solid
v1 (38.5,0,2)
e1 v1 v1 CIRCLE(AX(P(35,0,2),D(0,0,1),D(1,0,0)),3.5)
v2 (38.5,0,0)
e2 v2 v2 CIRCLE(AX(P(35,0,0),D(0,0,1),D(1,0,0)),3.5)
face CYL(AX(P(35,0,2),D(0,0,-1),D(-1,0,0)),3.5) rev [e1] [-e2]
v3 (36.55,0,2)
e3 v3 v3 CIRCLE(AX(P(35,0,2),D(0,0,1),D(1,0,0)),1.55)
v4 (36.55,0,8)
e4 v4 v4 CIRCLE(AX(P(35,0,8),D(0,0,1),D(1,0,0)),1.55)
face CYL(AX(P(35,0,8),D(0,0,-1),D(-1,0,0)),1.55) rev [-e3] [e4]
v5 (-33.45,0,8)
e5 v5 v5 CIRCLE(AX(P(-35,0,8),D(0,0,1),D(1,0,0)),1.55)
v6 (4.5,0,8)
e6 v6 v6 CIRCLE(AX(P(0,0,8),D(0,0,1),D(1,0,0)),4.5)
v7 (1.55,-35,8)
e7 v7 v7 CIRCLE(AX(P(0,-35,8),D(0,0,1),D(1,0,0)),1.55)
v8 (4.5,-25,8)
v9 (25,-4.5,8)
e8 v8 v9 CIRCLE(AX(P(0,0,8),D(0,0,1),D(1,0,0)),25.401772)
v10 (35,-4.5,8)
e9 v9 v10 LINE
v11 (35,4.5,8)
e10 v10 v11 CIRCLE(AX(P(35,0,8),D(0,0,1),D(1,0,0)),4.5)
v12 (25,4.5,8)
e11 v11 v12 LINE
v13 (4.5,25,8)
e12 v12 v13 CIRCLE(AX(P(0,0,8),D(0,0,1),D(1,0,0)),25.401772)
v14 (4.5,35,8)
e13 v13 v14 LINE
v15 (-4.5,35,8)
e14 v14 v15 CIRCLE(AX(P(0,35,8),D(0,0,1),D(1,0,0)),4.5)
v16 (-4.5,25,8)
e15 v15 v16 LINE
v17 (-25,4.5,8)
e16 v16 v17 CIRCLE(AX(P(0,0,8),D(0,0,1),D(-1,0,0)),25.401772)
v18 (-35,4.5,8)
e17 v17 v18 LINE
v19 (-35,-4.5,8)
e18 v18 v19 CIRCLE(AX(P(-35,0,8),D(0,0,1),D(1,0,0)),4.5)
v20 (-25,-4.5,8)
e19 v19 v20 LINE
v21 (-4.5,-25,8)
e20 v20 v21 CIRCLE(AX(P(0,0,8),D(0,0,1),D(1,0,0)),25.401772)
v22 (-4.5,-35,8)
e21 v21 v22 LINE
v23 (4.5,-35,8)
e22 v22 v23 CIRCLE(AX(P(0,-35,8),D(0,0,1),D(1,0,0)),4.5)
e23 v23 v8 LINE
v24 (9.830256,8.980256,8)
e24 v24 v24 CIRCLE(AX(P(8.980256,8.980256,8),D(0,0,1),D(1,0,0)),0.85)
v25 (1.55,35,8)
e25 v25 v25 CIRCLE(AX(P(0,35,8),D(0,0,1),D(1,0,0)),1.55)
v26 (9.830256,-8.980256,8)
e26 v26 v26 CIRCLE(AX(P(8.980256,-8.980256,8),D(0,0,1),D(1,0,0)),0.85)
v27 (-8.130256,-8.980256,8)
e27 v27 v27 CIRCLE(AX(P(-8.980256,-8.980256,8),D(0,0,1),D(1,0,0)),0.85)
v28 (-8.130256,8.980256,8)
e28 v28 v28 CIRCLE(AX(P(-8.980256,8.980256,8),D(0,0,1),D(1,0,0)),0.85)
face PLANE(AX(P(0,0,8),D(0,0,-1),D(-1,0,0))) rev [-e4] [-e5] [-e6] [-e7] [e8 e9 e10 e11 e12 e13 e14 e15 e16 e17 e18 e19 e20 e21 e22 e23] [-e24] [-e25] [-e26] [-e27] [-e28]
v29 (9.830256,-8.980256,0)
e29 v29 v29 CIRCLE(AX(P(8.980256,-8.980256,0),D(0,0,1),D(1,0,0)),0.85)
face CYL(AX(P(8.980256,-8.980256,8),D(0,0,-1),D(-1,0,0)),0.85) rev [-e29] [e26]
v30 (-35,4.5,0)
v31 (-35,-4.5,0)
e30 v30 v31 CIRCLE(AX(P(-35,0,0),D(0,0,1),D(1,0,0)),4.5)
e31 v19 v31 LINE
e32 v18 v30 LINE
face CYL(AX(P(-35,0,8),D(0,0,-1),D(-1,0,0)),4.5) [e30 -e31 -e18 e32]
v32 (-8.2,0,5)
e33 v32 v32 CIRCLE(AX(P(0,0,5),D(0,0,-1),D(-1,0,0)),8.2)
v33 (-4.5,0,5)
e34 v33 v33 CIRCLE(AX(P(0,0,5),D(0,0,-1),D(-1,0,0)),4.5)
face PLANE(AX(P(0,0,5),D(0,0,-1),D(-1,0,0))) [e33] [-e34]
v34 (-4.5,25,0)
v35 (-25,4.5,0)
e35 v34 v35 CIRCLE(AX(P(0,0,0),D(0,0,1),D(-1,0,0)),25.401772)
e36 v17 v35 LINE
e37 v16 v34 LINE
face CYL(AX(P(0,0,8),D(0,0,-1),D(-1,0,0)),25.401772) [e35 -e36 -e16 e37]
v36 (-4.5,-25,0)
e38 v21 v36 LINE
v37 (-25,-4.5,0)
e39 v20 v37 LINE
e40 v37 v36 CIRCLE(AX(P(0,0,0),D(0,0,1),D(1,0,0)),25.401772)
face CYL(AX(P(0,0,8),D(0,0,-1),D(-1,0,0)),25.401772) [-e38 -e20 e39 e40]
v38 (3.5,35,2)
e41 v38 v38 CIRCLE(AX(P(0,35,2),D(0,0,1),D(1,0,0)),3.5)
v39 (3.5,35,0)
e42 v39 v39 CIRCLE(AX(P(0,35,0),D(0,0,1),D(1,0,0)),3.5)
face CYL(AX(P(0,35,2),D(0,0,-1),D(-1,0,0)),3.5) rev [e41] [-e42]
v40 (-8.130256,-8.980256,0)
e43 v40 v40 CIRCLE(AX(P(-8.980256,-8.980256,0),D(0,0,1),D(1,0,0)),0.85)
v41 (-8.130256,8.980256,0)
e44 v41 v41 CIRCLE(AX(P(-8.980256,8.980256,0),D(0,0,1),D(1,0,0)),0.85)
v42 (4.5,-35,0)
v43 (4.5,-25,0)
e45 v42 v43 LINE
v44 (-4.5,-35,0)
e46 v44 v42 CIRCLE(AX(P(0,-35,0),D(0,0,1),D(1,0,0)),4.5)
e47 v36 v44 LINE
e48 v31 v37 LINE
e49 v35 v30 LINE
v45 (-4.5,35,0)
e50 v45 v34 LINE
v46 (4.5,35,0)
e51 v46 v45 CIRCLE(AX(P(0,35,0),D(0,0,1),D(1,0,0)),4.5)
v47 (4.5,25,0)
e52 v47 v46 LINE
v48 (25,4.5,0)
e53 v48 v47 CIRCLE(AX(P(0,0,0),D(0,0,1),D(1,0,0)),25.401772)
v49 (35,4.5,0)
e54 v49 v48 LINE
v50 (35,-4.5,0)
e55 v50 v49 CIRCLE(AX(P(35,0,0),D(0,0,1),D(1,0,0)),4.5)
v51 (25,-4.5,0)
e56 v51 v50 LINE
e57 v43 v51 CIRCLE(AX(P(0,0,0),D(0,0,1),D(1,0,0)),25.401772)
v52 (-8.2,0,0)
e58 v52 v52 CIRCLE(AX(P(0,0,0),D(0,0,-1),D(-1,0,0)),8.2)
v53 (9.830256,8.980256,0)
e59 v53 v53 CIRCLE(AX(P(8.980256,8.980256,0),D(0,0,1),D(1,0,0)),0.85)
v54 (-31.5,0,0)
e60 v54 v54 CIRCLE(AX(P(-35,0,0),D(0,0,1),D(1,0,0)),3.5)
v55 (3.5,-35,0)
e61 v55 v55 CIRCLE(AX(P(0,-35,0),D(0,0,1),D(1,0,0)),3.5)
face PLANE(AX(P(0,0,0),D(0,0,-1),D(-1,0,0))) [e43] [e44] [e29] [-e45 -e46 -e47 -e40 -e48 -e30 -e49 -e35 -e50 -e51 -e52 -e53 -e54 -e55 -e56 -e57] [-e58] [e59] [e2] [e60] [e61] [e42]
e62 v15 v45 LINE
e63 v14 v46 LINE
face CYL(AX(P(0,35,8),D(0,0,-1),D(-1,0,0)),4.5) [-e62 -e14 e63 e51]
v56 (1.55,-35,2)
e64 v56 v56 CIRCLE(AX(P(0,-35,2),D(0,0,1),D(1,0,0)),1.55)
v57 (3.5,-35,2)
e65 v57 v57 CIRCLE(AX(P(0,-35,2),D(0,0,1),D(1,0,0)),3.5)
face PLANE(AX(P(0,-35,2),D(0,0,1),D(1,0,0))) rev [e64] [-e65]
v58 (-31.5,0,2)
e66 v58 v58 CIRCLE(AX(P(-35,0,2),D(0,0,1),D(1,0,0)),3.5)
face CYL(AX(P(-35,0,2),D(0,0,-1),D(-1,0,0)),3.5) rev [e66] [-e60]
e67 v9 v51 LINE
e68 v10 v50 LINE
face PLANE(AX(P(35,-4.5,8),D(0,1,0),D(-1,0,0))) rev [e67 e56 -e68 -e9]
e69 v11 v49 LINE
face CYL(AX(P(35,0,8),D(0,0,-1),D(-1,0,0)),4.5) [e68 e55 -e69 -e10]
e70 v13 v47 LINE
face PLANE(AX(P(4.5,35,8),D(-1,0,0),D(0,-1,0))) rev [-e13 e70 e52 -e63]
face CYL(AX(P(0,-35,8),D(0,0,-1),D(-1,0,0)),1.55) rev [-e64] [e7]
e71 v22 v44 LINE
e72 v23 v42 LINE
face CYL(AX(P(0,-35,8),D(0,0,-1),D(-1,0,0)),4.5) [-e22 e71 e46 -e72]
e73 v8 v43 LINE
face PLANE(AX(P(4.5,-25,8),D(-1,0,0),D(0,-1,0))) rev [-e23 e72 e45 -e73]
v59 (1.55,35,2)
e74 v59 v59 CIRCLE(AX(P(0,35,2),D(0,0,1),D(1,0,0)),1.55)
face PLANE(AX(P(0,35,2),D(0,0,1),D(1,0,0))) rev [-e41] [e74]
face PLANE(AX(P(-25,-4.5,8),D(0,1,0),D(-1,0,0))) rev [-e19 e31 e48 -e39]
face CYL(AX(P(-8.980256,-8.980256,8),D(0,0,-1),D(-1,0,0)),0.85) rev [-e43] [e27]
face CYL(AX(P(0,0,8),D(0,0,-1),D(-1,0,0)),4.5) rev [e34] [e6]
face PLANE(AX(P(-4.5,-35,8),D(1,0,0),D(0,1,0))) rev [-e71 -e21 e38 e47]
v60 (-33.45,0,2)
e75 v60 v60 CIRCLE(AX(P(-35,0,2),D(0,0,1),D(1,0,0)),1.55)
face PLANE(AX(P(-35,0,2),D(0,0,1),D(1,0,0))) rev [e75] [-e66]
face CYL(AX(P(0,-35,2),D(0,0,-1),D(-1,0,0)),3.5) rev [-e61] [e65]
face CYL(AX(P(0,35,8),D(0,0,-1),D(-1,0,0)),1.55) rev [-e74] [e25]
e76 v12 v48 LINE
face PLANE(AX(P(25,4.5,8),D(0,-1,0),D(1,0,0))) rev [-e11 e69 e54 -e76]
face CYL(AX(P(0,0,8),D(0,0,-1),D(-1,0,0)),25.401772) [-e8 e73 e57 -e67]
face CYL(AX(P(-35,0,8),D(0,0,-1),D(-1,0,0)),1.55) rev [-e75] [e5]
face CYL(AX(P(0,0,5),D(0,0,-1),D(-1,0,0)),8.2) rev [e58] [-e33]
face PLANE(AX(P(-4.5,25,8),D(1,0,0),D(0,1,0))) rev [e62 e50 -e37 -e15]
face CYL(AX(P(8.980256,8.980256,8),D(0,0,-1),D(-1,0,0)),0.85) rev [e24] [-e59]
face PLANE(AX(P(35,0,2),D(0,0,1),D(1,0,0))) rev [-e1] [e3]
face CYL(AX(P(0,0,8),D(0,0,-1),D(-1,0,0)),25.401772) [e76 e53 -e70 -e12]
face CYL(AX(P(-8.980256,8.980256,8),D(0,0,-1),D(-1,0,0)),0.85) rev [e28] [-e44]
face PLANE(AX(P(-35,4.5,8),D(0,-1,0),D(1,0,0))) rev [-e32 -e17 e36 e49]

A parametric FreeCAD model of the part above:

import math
import FreeCAD as App
import Part
import Sketcher

V = App.Vector
Q = App.Units.Quantity

doc = App.newDocument("Part")
params = doc.addObject("Spreadsheet::Sheet", "Params")
for row, (alias, value) in enumerate([
    ("sketch1_diameter", "9 mm"),
    ("sketch1_diameter2", "1.7 mm"),
    ("sketch1_diameter3", "3.1 mm"),
    ("sketch1_width", "10 mm"),
    ("pad1_length", "8 mm"),
    ("sketch2_diameter", "16.4 mm"),
    ("pocket1_length", "5 mm"),
    ("sketch3_diameter", "7 mm"),
    ("pocket2_length", "2 mm"),
], start=1):
    params.set(f"A{row}", alias)
    params.set(f"B{row}", "=" + value)
    params.setAlias(f"B{row}", alias)

body = doc.addObject("PartDesign::Body", "Body")

# Sketch on XY plane
sketch1 = doc.addObject("Sketcher::SketchObject", "Sketch")
body.addObject(sketch1)
sketch1.AttachmentSupport = (doc.XY_Plane, [""])
sketch1.MapMode = "FlatFace"
sketch1.addGeometry([
    Part.LineSegment(V(-25, 4.5, 0), V(-35, 4.5, 0)),  # 0
    Part.ArcOfCircle(Part.Circle(V(-35, 0, 0), V(0, 0, 1), 4.5), math.radians(90), math.radians(270)),  # 1
    Part.LineSegment(V(-35, -4.5, 0), V(-25, -4.5, 0)),  # 2
    Part.ArcOfCircle(Part.Circle(V(0, 0, 0), V(0, 0, 1), 25.4), math.radians(-170), math.radians(-100)),  # 3
    Part.LineSegment(V(-4.5, -25, 0), V(-4.5, -35, 0)),  # 4
    Part.ArcOfCircle(Part.Circle(V(0, -35, 0), V(0, 0, 1), 4.5), math.radians(180), math.radians(360)),  # 5
    Part.LineSegment(V(4.5, -35, 0), V(4.5, -25, 0)),  # 6
    Part.ArcOfCircle(Part.Circle(V(0, 0, 0), V(0, 0, 1), 25.4), math.radians(-80), math.radians(-10)),  # 7
    Part.LineSegment(V(25, -4.5, 0), V(35, -4.5, 0)),  # 8
    Part.ArcOfCircle(Part.Circle(V(35, 0, 0), V(0, 0, 1), 4.5), math.radians(-90), math.radians(90)),  # 9
    Part.LineSegment(V(35, 4.5, 0), V(25, 4.5, 0)),  # 10
    Part.ArcOfCircle(Part.Circle(V(0, 0, 0), V(0, 0, 1), 25.4), math.radians(10), math.radians(80)),  # 11
    Part.LineSegment(V(4.5, 25, 0), V(4.5, 35, 0)),  # 12
    Part.ArcOfCircle(Part.Circle(V(0, 35, 0), V(0, 0, 1), 4.5), math.radians(0), math.radians(180)),  # 13
    Part.LineSegment(V(-4.5, 35, 0), V(-4.5, 25, 0)),  # 14
    Part.ArcOfCircle(Part.Circle(V(0, 0, 0), V(0, 0, 1), 25.4), math.radians(100), math.radians(170)),  # 15
    Part.Circle(V(9, -9, 0), V(0, 0, 1), 0.8),  # 16
    Part.Circle(V(0, -35, 0), V(0, 0, 1), 1.6),  # 17
    Part.Circle(V(-9, -9, 0), V(0, 0, 1), 0.8),  # 18
    Part.Circle(V(35, 0, 0), V(0, 0, 1), 1.6),  # 19
    Part.Circle(V(9, 9, 0), V(0, 0, 1), 0.8),  # 20
    Part.Circle(V(0, 0, 0), V(0, 0, 1), 4.5),  # 21
    Part.Circle(V(-9, 9, 0), V(0, 0, 1), 0.8),  # 22
    Part.Circle(V(-35, 0, 0), V(0, 0, 1), 1.6),  # 23
    Part.Circle(V(0, 35, 0), V(0, 0, 1), 1.6),  # 24
], False)
sketch1.addConstraint([
    Sketcher.Constraint("Tangent", 0, 2, 1, 1),
    Sketcher.Constraint("Tangent", 1, 2, 2, 1),
    Sketcher.Constraint("Coincident", 2, 2, 3, 1),
    Sketcher.Constraint("Coincident", 3, 2, 4, 1),
    Sketcher.Constraint("Tangent", 4, 2, 5, 1),
    Sketcher.Constraint("Tangent", 5, 2, 6, 1),
    Sketcher.Constraint("Coincident", 6, 2, 7, 1),
    Sketcher.Constraint("Coincident", 7, 2, 8, 1),
    Sketcher.Constraint("Tangent", 8, 2, 9, 1),
    Sketcher.Constraint("Tangent", 9, 2, 10, 1),
    Sketcher.Constraint("Coincident", 10, 2, 11, 1),
    Sketcher.Constraint("Coincident", 11, 2, 12, 1),
    Sketcher.Constraint("Tangent", 12, 2, 13, 1),
    Sketcher.Constraint("Tangent", 13, 2, 14, 1),
    Sketcher.Constraint("Coincident", 14, 2, 15, 1),
    Sketcher.Constraint("Coincident", 15, 2, 0, 1),
    Sketcher.Constraint("Horizontal", 0),
    Sketcher.Constraint("Horizontal", 2),
    Sketcher.Constraint("Vertical", 4),
    Sketcher.Constraint("Vertical", 6),
    Sketcher.Constraint("Horizontal", 8),
    Sketcher.Constraint("Horizontal", 10),
    Sketcher.Constraint("Vertical", 12),
    Sketcher.Constraint("Vertical", 14),
    Sketcher.Constraint("Coincident", 3, 3, -1, 1),
    Sketcher.Constraint("Coincident", 7, 3, -1, 1),
    Sketcher.Constraint("Coincident", 11, 3, -1, 1),
    Sketcher.Constraint("Coincident", 15, 3, -1, 1),
    Sketcher.Constraint("Coincident", 21, 3, -1, 1),
    Sketcher.Constraint("Coincident", 17, 3, 5, 3),
    Sketcher.Constraint("Coincident", 19, 3, 9, 3),
    Sketcher.Constraint("Coincident", 23, 3, 1, 3),
    Sketcher.Constraint("Coincident", 24, 3, 13, 3),
    Sketcher.Constraint("Equal", 1, 5),
    Sketcher.Constraint("Equal", 3, 7),
    Sketcher.Constraint("Equal", 5, 9),
    Sketcher.Constraint("Equal", 7, 11),
    Sketcher.Constraint("Equal", 9, 13),
    Sketcher.Constraint("Equal", 11, 15),
    Sketcher.Constraint("Equal", 16, 18),
    Sketcher.Constraint("Equal", 17, 19),
    Sketcher.Constraint("Equal", 18, 20),
    Sketcher.Constraint("Equal", 13, 21),
    Sketcher.Constraint("Equal", 20, 22),
    Sketcher.Constraint("Equal", 19, 23),
    Sketcher.Constraint("Equal", 23, 24),
    Sketcher.Constraint("Symmetric", 1, 3, 9, 3, -1, 1),
    Sketcher.Constraint("Symmetric", 5, 3, 13, 3, -1, 1),
    Sketcher.Constraint("Symmetric", 18, 3, 20, 3, -1, 1),
    Sketcher.Constraint("Symmetric", 16, 3, 22, 3, -1, 1),
    Sketcher.Constraint("Symmetric", 16, 3, 18, 3, -2),
    Sketcher.Constraint("PointOnObject", 1, 3, -1),
    Sketcher.Constraint("PointOnObject", 5, 3, -2),
    Sketcher.Constraint("Equal", 10, 4),
    Sketcher.Constraint("Diameter", 21, Q("9 mm")),
    Sketcher.Constraint("Diameter", 16, Q("1.7 mm")),
    Sketcher.Constraint("Diameter", 17, Q("3.1 mm")),
    Sketcher.Constraint("DistanceX", 0, 2, 0, 1, Q("10 mm")),
    Sketcher.Constraint("DistanceX", 1, 3, -1, 1, Q("35 mm")),
    Sketcher.Constraint("DistanceX", -1, 1, 16, 3, Q("8.980256 mm")),
    Sketcher.Constraint("DistanceY", 16, 3, -1, 1, Q("8.980256 mm")),
])
sketch1.setExpression("Constraints[54]", "Params.sketch1_diameter")
sketch1.setExpression("Constraints[55]", "Params.sketch1_diameter2")
sketch1.setExpression("Constraints[56]", "Params.sketch1_diameter3")
sketch1.setExpression("Constraints[57]", "Params.sketch1_width")
pad1 = doc.addObject("PartDesign::Pad", "Pad")
body.addObject(pad1)
pad1.Profile = sketch1
pad1.setExpression("Length", "Params.pad1_length")

# Sketch on XY plane
sketch2 = doc.addObject("Sketcher::SketchObject", "Sketch001")
body.addObject(sketch2)
sketch2.AttachmentSupport = (doc.XY_Plane, [""])
sketch2.MapMode = "FlatFace"
sketch2.addGeometry(Part.Circle(V(0, 0, 0), V(0, 0, 1), 8), False)
sketch2.addConstraint([
    Sketcher.Constraint("Coincident", 0, 3, -1, 1),
    Sketcher.Constraint("Diameter", 0, Q("16.4 mm")),
])
sketch2.setExpression("Constraints[1]", "Params.sketch2_diameter")
pocket1 = doc.addObject("PartDesign::Pocket", "Pocket")
body.addObject(pocket1)
pocket1.Profile = sketch2
pocket1.setExpression("Length", "Params.pocket1_length")
pocket1.Reversed = True

# Sketch on XY plane
sketch3 = doc.addObject("Sketcher::SketchObject", "Sketch002")
body.addObject(sketch3)
sketch3.AttachmentSupport = (doc.XY_Plane, [""])
sketch3.MapMode = "FlatFace"
sketch3.addGeometry([
    Part.Circle(V(0, 35, 0), V(0, 0, 1), 3.5),
    Part.Circle(V(35, 0, 0), V(0, 0, 1), 3.5),
    Part.Circle(V(0, -35, 0), V(0, 0, 1), 3.5),
    Part.Circle(V(-35, 0, 0), V(0, 0, 1), 3.5),
], False)
sketch3.addConstraint([
    Sketcher.Constraint("Equal", 0, 1),
    Sketcher.Constraint("Equal", 1, 2),
    Sketcher.Constraint("Equal", 2, 3),
    Sketcher.Constraint("Symmetric", 0, 3, 2, 3, -1, 1),
    Sketcher.Constraint("Symmetric", 1, 3, 3, 3, -1, 1),
    Sketcher.Constraint("PointOnObject", 0, 3, -2),
    Sketcher.Constraint("PointOnObject", 1, 3, -1),
    Sketcher.Constraint("Diameter", 0, Q("7 mm")),
    Sketcher.Constraint("DistanceY", -1, 1, 0, 3, Q("35 mm")),
    Sketcher.Constraint("DistanceX", -1, 1, 1, 3, Q("35 mm")),
])
sketch3.setExpression("Constraints[7]", "Params.sketch3_diameter")
pocket2 = doc.addObject("PartDesign::Pocket", "Pocket001")
body.addObject(pocket2)
pocket2.Profile = sketch3
pocket2.setExpression("Length", "Params.pocket2_length")
pocket2.Reversed = True

doc.recompute()
